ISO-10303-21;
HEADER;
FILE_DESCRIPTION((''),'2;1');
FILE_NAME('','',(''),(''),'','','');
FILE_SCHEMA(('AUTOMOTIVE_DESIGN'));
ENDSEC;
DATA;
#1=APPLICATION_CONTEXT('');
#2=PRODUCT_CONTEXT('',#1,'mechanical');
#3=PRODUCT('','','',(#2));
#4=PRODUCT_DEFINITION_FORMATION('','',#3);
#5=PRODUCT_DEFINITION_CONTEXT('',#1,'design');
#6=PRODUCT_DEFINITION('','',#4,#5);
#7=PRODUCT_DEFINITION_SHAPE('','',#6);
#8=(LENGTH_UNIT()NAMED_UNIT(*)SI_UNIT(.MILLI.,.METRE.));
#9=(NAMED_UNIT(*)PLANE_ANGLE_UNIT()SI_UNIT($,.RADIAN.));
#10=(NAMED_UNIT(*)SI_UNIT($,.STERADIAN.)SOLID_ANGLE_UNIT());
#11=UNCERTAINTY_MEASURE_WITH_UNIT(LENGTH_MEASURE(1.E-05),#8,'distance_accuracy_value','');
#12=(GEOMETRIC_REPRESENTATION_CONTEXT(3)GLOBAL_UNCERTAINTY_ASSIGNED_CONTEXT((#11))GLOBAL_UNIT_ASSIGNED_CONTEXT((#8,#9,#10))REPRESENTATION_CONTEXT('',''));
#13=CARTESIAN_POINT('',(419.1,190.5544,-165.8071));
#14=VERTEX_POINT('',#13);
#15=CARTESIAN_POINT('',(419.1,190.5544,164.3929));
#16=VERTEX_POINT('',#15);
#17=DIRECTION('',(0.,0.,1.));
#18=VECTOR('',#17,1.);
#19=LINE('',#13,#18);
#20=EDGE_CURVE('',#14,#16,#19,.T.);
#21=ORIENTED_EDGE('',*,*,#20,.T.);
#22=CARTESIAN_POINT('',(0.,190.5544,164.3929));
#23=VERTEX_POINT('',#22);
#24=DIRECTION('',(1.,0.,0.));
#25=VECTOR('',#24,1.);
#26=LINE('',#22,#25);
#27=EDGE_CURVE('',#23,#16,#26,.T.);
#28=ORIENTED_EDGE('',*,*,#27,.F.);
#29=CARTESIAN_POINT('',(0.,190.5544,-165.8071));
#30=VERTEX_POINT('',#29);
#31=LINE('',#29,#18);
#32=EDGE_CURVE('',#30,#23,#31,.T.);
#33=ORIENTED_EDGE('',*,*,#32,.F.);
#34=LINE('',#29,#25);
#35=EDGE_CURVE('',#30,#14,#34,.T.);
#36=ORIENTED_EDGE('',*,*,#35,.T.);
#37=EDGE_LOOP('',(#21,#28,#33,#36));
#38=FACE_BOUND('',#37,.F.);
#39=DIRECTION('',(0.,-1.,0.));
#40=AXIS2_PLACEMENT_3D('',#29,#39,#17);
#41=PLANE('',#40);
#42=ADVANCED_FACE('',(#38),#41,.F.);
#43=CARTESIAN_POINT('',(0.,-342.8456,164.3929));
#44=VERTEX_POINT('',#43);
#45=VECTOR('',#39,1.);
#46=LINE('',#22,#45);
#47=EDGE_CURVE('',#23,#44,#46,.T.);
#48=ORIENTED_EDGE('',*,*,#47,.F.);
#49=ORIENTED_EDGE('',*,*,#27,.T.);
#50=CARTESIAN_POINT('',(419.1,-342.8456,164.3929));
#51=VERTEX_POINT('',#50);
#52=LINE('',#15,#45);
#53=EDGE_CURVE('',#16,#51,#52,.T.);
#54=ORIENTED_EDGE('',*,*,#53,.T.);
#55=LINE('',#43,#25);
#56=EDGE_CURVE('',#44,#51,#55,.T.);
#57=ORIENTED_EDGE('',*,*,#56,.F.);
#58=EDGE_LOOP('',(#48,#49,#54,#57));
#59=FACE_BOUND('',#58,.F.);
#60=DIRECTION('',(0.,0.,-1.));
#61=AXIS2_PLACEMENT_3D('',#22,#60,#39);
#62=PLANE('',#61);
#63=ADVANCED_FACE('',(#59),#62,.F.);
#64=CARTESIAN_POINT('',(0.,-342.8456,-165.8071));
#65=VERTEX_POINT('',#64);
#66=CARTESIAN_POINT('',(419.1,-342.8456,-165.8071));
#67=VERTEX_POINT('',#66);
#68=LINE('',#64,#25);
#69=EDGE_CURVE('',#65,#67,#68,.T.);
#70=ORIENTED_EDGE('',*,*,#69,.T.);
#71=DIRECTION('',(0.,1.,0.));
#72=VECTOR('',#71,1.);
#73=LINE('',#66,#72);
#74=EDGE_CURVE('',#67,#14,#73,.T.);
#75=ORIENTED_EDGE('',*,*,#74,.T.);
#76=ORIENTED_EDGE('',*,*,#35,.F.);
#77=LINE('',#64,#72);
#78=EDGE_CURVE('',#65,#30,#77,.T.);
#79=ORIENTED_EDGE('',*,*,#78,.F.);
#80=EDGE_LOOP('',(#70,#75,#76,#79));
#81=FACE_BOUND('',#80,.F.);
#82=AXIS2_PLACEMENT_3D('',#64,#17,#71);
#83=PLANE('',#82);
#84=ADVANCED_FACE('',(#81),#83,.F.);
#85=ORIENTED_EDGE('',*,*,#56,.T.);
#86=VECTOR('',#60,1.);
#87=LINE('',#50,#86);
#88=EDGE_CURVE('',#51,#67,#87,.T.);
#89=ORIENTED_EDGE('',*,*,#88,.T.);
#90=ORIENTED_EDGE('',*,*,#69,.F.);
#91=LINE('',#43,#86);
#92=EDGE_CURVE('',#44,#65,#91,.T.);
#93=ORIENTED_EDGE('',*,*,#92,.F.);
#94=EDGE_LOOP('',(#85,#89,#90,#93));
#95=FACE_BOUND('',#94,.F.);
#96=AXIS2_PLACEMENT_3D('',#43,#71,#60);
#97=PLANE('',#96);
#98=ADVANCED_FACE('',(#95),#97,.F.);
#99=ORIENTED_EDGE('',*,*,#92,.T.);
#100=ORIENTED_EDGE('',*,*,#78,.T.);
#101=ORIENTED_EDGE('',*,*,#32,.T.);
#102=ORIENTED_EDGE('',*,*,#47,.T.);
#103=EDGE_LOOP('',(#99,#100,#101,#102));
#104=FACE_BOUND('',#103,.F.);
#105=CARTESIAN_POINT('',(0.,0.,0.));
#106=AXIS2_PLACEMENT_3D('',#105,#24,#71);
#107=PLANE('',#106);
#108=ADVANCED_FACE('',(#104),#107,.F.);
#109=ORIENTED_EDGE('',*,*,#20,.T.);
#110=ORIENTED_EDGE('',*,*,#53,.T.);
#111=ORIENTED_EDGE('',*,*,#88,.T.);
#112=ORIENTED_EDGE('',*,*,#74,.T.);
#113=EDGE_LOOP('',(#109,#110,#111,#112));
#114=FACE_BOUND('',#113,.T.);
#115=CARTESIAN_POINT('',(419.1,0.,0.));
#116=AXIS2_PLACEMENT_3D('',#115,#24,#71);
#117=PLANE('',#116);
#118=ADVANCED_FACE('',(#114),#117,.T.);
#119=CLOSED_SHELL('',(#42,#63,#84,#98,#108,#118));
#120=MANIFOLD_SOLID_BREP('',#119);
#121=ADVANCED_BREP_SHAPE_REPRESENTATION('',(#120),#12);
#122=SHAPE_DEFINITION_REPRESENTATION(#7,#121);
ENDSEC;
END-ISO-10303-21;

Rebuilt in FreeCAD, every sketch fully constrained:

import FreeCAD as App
import Part
import Sketcher
from FreeCAD import Vector
Q = App.Units.Quantity

doc = App.newDocument("Part")
params = doc.addObject("Spreadsheet::Sheet", "Params")
for row, (alias, value) in enumerate([
    ("sketch1_width", "21 in"),
    ("sketch1_height", "13 in"),
    ("pad1_length", "16.5 in"),
], start=1):
    params.set(f"A{row}", alias)
    params.set(f"B{row}", "=" + value)
    params.setAlias(f"B{row}", alias)

body = doc.addObject("PartDesign::Body", "Body")

# Sketch on YZ plane
sketch1 = body.newObject("Sketcher::SketchObject", "Sketch")
sketch1.AttachmentSupport = (doc.getObject("YZ_Plane"), [""])
sketch1.MapMode = "FlatFace"
sketch1.addGeometry([
    Part.LineSegment(Vector(190.5544, -165.8071, 0), Vector(190.5544, 164.3929, 0)),
    Part.LineSegment(Vector(190.5544, 164.3929, 0), Vector(-342.8456, 164.3929, 0)),
    Part.LineSegment(Vector(-342.8456, 164.3929, 0), Vector(-342.8456, -165.8071, 0)),
    Part.LineSegment(Vector(-342.8456, -165.8071, 0), Vector(190.5544, -165.8071, 0)),
], False)
sketch1.addConstraint([
    Sketcher.Constraint("Coincident", 0, 2, 1, 1),
    Sketcher.Constraint("Coincident", 1, 2, 2, 1),
    Sketcher.Constraint("Coincident", 2, 2, 3, 1),
    Sketcher.Constraint("Coincident", 3, 2, 0, 1),
    Sketcher.Constraint("Vertical", 0),
    Sketcher.Constraint("Horizontal", 1),
    Sketcher.Constraint("Vertical", 2),
    Sketcher.Constraint("Horizontal", 3),
    Sketcher.Constraint("DistanceX", 1, 2, 1, 1, Q("21 in")),
    Sketcher.Constraint("DistanceY", 0, 1, 0, 2, Q("13 in")),
    Sketcher.Constraint("DistanceX", -1, 1, 0, 2, 190.5544),
    Sketcher.Constraint("DistanceY", -1, 1, 0, 2, 164.393),
])
sketch1.setExpression("Constraints[8]", "Params.sketch1_width")
sketch1.setExpression("Constraints[9]", "Params.sketch1_height")
pad1 = body.newObject("PartDesign::Pad", "Pad")
pad1.Profile = sketch1
pad1.setExpression("Length", "Params.pad1_length")

doc.recompute()
